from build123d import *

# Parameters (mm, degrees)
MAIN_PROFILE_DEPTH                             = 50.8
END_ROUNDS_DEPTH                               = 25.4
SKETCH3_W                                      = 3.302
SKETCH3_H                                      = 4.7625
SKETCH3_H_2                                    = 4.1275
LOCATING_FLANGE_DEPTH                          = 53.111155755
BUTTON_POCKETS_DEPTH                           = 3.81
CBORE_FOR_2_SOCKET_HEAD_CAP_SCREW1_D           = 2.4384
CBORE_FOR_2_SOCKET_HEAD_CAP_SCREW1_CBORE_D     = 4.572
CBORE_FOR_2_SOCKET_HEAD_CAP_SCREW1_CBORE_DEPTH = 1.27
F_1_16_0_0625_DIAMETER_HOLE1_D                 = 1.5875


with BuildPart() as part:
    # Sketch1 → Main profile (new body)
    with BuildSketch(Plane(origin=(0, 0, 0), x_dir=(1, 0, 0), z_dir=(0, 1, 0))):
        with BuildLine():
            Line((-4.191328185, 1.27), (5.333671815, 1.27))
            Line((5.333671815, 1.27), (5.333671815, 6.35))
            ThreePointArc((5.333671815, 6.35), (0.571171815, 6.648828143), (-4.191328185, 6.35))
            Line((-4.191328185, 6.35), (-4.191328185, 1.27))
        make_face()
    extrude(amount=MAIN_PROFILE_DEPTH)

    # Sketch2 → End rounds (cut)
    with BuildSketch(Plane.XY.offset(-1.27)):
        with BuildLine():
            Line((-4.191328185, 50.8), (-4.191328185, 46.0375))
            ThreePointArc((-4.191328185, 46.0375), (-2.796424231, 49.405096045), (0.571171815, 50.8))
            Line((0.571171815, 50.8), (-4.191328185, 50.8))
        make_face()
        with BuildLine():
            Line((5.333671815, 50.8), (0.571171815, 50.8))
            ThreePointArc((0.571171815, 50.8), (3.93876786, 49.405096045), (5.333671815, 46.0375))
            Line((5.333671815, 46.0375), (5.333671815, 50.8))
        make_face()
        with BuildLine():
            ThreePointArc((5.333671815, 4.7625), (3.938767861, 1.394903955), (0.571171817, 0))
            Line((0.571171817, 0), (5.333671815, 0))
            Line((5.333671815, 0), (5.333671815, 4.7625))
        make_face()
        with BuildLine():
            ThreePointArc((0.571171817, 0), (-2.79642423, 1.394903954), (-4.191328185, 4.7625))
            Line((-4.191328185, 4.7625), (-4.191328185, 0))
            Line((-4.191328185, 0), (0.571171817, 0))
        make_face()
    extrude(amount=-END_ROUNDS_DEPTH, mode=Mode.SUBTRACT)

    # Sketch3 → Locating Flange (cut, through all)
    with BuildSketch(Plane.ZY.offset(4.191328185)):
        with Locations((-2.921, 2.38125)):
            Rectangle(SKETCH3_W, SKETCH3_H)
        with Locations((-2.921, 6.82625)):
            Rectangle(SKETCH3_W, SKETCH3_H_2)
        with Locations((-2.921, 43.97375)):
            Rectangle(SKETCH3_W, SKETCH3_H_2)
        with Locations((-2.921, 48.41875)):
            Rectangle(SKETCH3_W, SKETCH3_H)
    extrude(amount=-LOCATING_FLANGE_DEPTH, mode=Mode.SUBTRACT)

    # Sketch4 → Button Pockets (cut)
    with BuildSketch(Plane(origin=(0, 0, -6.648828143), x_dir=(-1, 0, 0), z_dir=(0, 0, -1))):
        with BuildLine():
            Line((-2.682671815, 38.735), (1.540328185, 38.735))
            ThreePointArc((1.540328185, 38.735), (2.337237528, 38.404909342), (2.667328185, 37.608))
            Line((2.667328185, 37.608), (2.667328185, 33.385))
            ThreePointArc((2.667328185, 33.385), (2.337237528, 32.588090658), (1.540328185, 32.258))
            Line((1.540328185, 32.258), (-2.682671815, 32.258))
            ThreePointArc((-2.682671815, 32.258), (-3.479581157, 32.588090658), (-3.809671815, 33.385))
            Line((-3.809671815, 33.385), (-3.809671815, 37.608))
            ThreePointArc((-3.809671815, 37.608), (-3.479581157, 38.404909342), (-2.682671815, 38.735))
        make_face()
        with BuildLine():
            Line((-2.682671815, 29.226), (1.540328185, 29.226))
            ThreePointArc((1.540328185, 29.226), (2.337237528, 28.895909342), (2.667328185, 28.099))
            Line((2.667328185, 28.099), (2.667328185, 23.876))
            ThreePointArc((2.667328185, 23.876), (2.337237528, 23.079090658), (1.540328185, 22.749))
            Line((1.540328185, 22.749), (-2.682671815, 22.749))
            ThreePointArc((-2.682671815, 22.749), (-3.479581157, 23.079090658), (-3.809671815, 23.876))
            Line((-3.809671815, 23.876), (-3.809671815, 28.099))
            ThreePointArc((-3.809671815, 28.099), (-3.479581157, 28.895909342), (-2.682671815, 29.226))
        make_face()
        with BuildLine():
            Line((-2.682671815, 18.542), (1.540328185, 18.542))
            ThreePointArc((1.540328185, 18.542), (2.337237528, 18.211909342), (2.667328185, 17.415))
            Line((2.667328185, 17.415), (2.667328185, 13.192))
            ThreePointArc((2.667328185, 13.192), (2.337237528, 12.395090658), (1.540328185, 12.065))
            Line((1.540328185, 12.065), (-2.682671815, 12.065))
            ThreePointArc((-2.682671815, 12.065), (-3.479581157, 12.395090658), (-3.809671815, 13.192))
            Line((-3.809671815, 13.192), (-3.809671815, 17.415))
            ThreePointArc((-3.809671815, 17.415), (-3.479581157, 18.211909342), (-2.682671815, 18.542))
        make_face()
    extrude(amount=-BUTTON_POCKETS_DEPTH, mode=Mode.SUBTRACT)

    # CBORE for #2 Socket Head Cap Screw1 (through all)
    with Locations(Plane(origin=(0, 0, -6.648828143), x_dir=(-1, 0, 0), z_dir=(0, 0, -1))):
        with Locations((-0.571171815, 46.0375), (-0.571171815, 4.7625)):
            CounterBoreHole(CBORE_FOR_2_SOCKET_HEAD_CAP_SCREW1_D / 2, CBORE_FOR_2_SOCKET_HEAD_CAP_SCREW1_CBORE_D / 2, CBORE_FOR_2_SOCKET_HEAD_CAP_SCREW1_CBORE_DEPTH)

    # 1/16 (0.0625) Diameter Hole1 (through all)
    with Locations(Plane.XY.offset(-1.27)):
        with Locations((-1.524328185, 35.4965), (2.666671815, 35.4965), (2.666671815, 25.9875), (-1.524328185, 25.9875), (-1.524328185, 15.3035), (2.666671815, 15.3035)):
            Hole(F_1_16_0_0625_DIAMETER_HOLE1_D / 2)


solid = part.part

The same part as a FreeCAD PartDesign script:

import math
import FreeCAD as App
import Part
import Sketcher
from FreeCAD import Vector
Q = App.Units.Quantity


def add_polygon(sketch, points):
    """Adds a closed chain of lines whose ends are joined by coincident constraints."""
    first, n = sketch.GeometryCount, len(points)
    for a, b in zip(points, points[1:] + points[:1]):
        sketch.addGeometry(Part.LineSegment(App.Vector(*a, 0), App.Vector(*b, 0)), False)
    for i in range(n):
        sketch.addConstraint(Sketcher.Constraint("Coincident", first + i, 2, first + (i + 1) % n, 1))

doc = App.newDocument("Part")
params = doc.addObject("Spreadsheet::Sheet", "Params")
for row, (alias, value) in enumerate([
    ("sketch1_radius", "1.5 in"),
    ("sketch1_height", "0.2 in"),
    ("sketch1_width", "0.375 in"),
    ("pad1_length", "2 in"),
    ("sketch2_radius", "0.1875 in"),
    ("pocket1_length", "1 in"),
    ("sketch3_width", "0.35 in"),
    ("sketch3_height", "0.13 in"),
    ("pocket3_length", "0.15 in"),
    ("sketch5_diameter", "0.096 in"),
    ("hole_diameter", "0.096 in"),
    ("hole_cbore_diameter", "0.18 in"),
    ("hole_cbore_depth", "0.05 in"),
    ("sketch6_diameter", "0.0625 in"),
    ("hole2_diameter", "0.0625 in"),
], start=1):
    params.set(f"A{row}", alias)
    params.set(f"B{row}", "=" + value)
    params.setAlias(f"B{row}", alias)

body = doc.addObject("PartDesign::Body", "Body")

# Sketch on XZ plane
sketch1 = body.newObject("Sketcher::SketchObject", "Sketch")
sketch1.AttachmentSupport = (doc.getObject("XZ_Plane"), [""])
sketch1.MapMode = "FlatFace"
sketch1.addGeometry(Part.LineSegment(Vector(-4, -1, 0), Vector(5, -1, 0)), False)
sketch1.addGeometry(Part.LineSegment(Vector(5, -1, 0), Vector(5, -6, 0)), False)
sketch1.addGeometry(Part.ArcOfCircle(Part.Circle(Vector(1, 31, 0), Vector(0, 0, 1), 38), math.radians(-97.18), math.radians(-82.82)), False)
sketch1.addGeometry(Part.LineSegment(Vector(-4, -6, 0), Vector(-4, -1, 0)), False)
sketch1.addConstraint(Sketcher.Constraint("Coincident", 0, 2, 1, 1))
sketch1.addConstraint(Sketcher.Constraint("Coincident", 1, 2, 2, 2))
sketch1.addConstraint(Sketcher.Constraint("Coincident", 2, 1, 3, 1))
sketch1.addConstraint(Sketcher.Constraint("Coincident", 3, 2, 0, 1))
sketch1.addConstraint(Sketcher.Constraint("Horizontal", 0))
sketch1.addConstraint(Sketcher.Constraint("Vertical", 1))
sketch1.addConstraint(Sketcher.Constraint("Vertical", 3))
sketch1.addConstraint(Sketcher.Constraint("Horizontal", 1, 2, 2, 1))
sketch1.addConstraint(Sketcher.Constraint("Radius", 2, Q("1.5 in")))
sketch1.addConstraint(Sketcher.Constraint("DistanceY", 1, 2, 1, 1, Q("0.2 in")))
sketch1.addConstraint(Sketcher.Constraint("DistanceX", 0, 1, 0, 2, Q("0.375 in")))
sketch1.addConstraint(Sketcher.Constraint("DistanceY", 0, 2, -1, 1, Q("0.05 in")))
sketch1.addConstraint(Sketcher.Constraint("DistanceX", -1, 1, 2, 3, Q("0.571172 mm")))
sketch1.setExpression("Constraints[8]", "Params.sketch1_radius")
sketch1.setExpression("Constraints[9]", "Params.sketch1_height")
sketch1.setExpression("Constraints[10]", "Params.sketch1_width")
pad1 = body.newObject("PartDesign::Pad", "Pad")
pad1.Profile = sketch1
pad1.setExpression("Length", "Params.pad1_length")
pad1.Reversed = True

# Sketch on XY plane
sketch2 = body.newObject("Sketcher::SketchObject", "Sketch001")
sketch2.AttachmentSupport = (doc.getObject("XY_Plane"), [""])
sketch2.MapMode = "FlatFace"
sketch2.AttachmentOffset = App.Placement(Vector(0, 0, -0.05 * 25.4), App.Rotation())
sketch2.addGeometry(Part.LineSegment(Vector(-4.2, 50.8, 0), Vector(-4.2, 46, 0)), False)
sketch2.addGeometry(Part.ArcOfCircle(Part.Circle(Vector(0.6, 46, 0), Vector(0, 0, 1), 4.8), math.radians(90), math.radians(180)), False)
sketch2.addGeometry(Part.LineSegment(Vector(0.6, 50.8, 0), Vector(-4.2, 50.8, 0)), False)
sketch2.addGeometry(Part.LineSegment(Vector(5.3, 50.8, 0), Vector(0.6, 50.8, 0)), False)
sketch2.addGeometry(Part.ArcOfCircle(Part.Circle(Vector(0.6, 46, 0), Vector(0, 0, 1), 4.8), math.radians(0), math.radians(90)), False)
sketch2.addGeometry(Part.LineSegment(Vector(5.3, 46, 0), Vector(5.3, 50.8, 0)), False)
sketch2.addGeometry(Part.ArcOfCircle(Part.Circle(Vector(0.6, 4.8, 0), Vector(0, 0, 1), 4.8), math.radians(-90), math.radians(0)), False)
sketch2.addGeometry(Part.LineSegment(Vector(0.6, 0, 0), Vector(5.3, 0, 0)), False)
sketch2.addGeometry(Part.LineSegment(Vector(5.3, 0, 0), Vector(5.3, 4.8, 0)), False)
sketch2.addGeometry(Part.ArcOfCircle(Part.Circle(Vector(0.6, 4.8, 0), Vector(0, 0, 1), 4.8), math.radians(180), math.radians(270)), False)
sketch2.addGeometry(Part.LineSegment(Vector(-4.2, 4.8, 0), Vector(-4.2, 0, 0)), False)
sketch2.addGeometry(Part.LineSegment(Vector(-4.2, 0, 0), Vector(0.6, 0, 0)), False)
sketch2.addConstraint(Sketcher.Constraint("Tangent", 0, 2, 1, 2))
sketch2.addConstraint(Sketcher.Constraint("Tangent", 1, 1, 2, 1))
sketch2.addConstraint(Sketcher.Constraint("Coincident", 2, 2, 0, 1))
sketch2.addConstraint(Sketcher.Constraint("Tangent", 3, 2, 4, 2))
sketch2.addConstraint(Sketcher.Constraint("Tangent", 4, 1, 5, 1))
sketch2.addConstraint(Sketcher.Constraint("Coincident", 5, 2, 3, 1))
sketch2.addConstraint(Sketcher.Constraint("Tangent", 6, 1, 7, 1))
sketch2.addConstraint(Sketcher.Constraint("Coincident", 7, 2, 8, 1))
sketch2.addConstraint(Sketcher.Constraint("Tangent", 8, 2, 6, 2))
sketch2.addConstraint(Sketcher.Constraint("Tangent", 9, 1, 10, 1))
sketch2.addConstraint(Sketcher.Constraint("Coincident", 10, 2, 11, 1))
sketch2.addConstraint(Sketcher.Constraint("Tangent", 11, 2, 9, 2))
sketch2.addConstraint(Sketcher.Constraint("Vertical", 0))
sketch2.addConstraint(Sketcher.Constraint("Horizontal", 2))
sketch2.addConstraint(Sketcher.Constraint("Horizontal", 3))
sketch2.addConstraint(Sketcher.Constraint("Vertical", 5))
sketch2.addConstraint(Sketcher.Constraint("Horizontal", 7))
sketch2.addConstraint(Sketcher.Constraint("Vertical", 8))
sketch2.addConstraint(Sketcher.Constraint("Vertical", 10))
sketch2.addConstraint(Sketcher.Constraint("Horizontal", 11))
sketch2.addConstraint(Sketcher.Constraint("Coincident", 4, 3, 1, 3))
sketch2.addConstraint(Sketcher.Constraint("Coincident", 9, 3, 6, 3))
sketch2.addConstraint(Sketcher.Constraint("Equal", 1, 4))
sketch2.addConstraint(Sketcher.Constraint("Equal", 4, 6))
sketch2.addConstraint(Sketcher.Constraint("Equal", 6, 9))
sketch2.addConstraint(Sketcher.Constraint("PointOnObject", 6, 1, -1))
sketch2.addConstraint(Sketcher.Constraint("Vertical", 4, 3, 6, 3))
sketch2.addConstraint(Sketcher.Constraint("DistanceY", -1, 1, 1, 1, Q("2 in")))
sketch2.addConstraint(Sketcher.Constraint("Radius", 1, Q("0.1875 in")))
sketch2.addConstraint(Sketcher.Constraint("DistanceX", -1, 1, 1, 3, Q("0.571172 mm")))
sketch2.setExpression("Constraints[28]", "Params.sketch2_radius")
pocket1 = body.newObject("PartDesign::Pocket", "Pocket")
pocket1.Profile = sketch2
pocket1.setExpression("Length", "Params.pocket1_length")

# Sketch on YZ plane
sketch3 = body.newObject("Sketcher::SketchObject", "Sketch002")
sketch3.AttachmentSupport = (doc.getObject("YZ_Plane"), [""])
sketch3.MapMode = "FlatFace"
sketch3.AttachmentOffset = App.Placement(Vector(0, 0, -4.191328), App.Rotation())
add_polygon(sketch3, [(0, -4.6), (0, -1.3), (8.9, -1.3), (8.9, -4.6)])  # lines 0-3
add_polygon(sketch3, [(41.9, -4.6), (41.9, -1.3), (50.8, -1.3), (50.8, -4.6)])  # lines 4-7
sketch3.addConstraint(Sketcher.Constraint("Vertical", 0))
sketch3.addConstraint(Sketcher.Constraint("Horizontal", 1))
sketch3.addConstraint(Sketcher.Constraint("Vertical", 2))
sketch3.addConstraint(Sketcher.Constraint("Horizontal", 3))
sketch3.addConstraint(Sketcher.Constraint("Vertical", 4))
sketch3.addConstraint(Sketcher.Constraint("Horizontal", 5))
sketch3.addConstraint(Sketcher.Constraint("Vertical", 6))
sketch3.addConstraint(Sketcher.Constraint("Horizontal", 7))
sketch3.addConstraint(Sketcher.Constraint("PointOnObject", 0, 2, -2))
sketch3.addConstraint(Sketcher.Constraint("Horizontal", 1, 2, 4, 2))
sketch3.addConstraint(Sketcher.Constraint("Horizontal", 3, 2, 6, 2))
sketch3.addConstraint(Sketcher.Constraint("Equal", 3, 5))
sketch3.addConstraint(Sketcher.Constraint("DistanceX", -1, 1, 5, 2, Q("2 in")))
sketch3.addConstraint(Sketcher.Constraint("DistanceX", 1, 1, 1, 2, Q("0.35 in")))
sketch3.addConstraint(Sketcher.Constraint("DistanceY", 0, 1, 0, 2, Q("0.13 in")))
sketch3.addConstraint(Sketcher.Constraint("DistanceY", 0, 2, -1, 1, Q("0.05 in")))
sketch3.setExpression("Constraints[21]", "Params.sketch3_width")
sketch3.setExpression("Constraints[22]", "Params.sketch3_height")
pocket2 = body.newObject("PartDesign::Pocket", "Pocket001")
pocket2.Profile = sketch3
pocket2.Type = "ThroughAll"
pocket2.Reversed = True

# Sketch on XY plane
sketch4 = body.newObject("Sketcher::SketchObject", "Sketch003")
sketch4.AttachmentSupport = (doc.getObject("XY_Plane"), [""])
sketch4.MapMode = "FlatFace"
sketch4.AttachmentOffset = App.Placement(Vector(0, 0, -6.648828), App.Rotation())
sketch4.addGeometry(Part.LineSegment(Vector(-1.5, 38.7, 0), Vector(2.7, 38.7, 0)), False)
sketch4.addGeometry(Part.ArcOfCircle(Part.Circle(Vector(2.7, 37.6, 0), Vector(0, 0, 1), 1.1), math.radians(0), math.radians(90)), False)
sketch4.addGeometry(Part.LineSegment(Vector(3.8, 37.6, 0), Vector(3.8, 33.4, 0)), False)
sketch4.addGeometry(Part.ArcOfCircle(Part.Circle(Vector(2.7, 33.4, 0), Vector(0, 0, 1), 1.1), math.radians(-90), math.radians(0)), False)
sketch4.addGeometry(Part.LineSegment(Vector(2.7, 32.3, 0), Vector(-1.5, 32.3, 0)), False)
sketch4.addGeometry(Part.ArcOfCircle(Part.Circle(Vector(-1.5, 33.4, 0), Vector(0, 0, 1), 1.1), math.radians(180), math.radians(270)), False)
sketch4.addGeometry(Part.LineSegment(Vector(-2.7, 33.4, 0), Vector(-2.7, 37.6, 0)), False)
sketch4.addGeometry(Part.ArcOfCircle(Part.Circle(Vector(-1.5, 37.6, 0), Vector(0, 0, 1), 1.1), math.radians(90), math.radians(180)), False)
sketch4.addGeometry(Part.LineSegment(Vector(-1.5, 29.2, 0), Vector(2.7, 29.2, 0)), False)
sketch4.addGeometry(Part.ArcOfCircle(Part.Circle(Vector(2.7, 28.1, 0), Vector(0, 0, 1), 1.1), math.radians(0), math.radians(90)), False)
sketch4.addGeometry(Part.LineSegment(Vector(3.8, 28.1, 0), Vector(3.8, 23.9, 0)), False)
sketch4.addGeometry(Part.ArcOfCircle(Part.Circle(Vector(2.7, 23.9, 0), Vector(0, 0, 1), 1.1), math.radians(-90), math.radians(0)), False)
sketch4.addGeometry(Part.LineSegment(Vector(2.7, 22.7, 0), Vector(-1.5, 22.7, 0)), False)
sketch4.addGeometry(Part.ArcOfCircle(Part.Circle(Vector(-1.5, 23.9, 0), Vector(0, 0, 1), 1.1), math.radians(180), math.radians(270)), False)
sketch4.addGeometry(Part.LineSegment(Vector(-2.7, 23.9, 0), Vector(-2.7, 28.1, 0)), False)
sketch4.addGeometry(Part.ArcOfCircle(Part.Circle(Vector(-1.5, 28.1, 0), Vector(0, 0, 1), 1.1), math.radians(90), math.radians(180)), False)
sketch4.addGeometry(Part.LineSegment(Vector(-1.5, 18.5, 0), Vector(2.7, 18.5, 0)), False)
sketch4.addGeometry(Part.ArcOfCircle(Part.Circle(Vector(2.7, 17.4, 0), Vector(0, 0, 1), 1.1), math.radians(0), math.radians(90)), False)
sketch4.addGeometry(Part.LineSegment(Vector(3.8, 17.4, 0), Vector(3.8, 13.2, 0)), False)
sketch4.addGeometry(Part.ArcOfCircle(Part.Circle(Vector(2.7, 13.2, 0), Vector(0, 0, 1), 1.1), math.radians(-90), math.radians(0)), False)
sketch4.addGeometry(Part.LineSegment(Vector(2.7, 12.1, 0), Vector(-1.5, 12.1, 0)), False)
sketch4.addGeometry(Part.ArcOfCircle(Part.Circle(Vector(-1.5, 13.2, 0), Vector(0, 0, 1), 1.1), math.radians(180), math.radians(270)), False)
sketch4.addGeometry(Part.LineSegment(Vector(-2.7, 13.2, 0), Vector(-2.7, 17.4, 0)), False)
sketch4.addGeometry(Part.ArcOfCircle(Part.Circle(Vector(-1.5, 17.4, 0), Vector(0, 0, 1), 1.1), math.radians(90), math.radians(180)), False)
sketch4.addConstraint(Sketcher.Constraint("Tangent", 0, 2, 1, 2))
sketch4.addConstraint(Sketcher.Constraint("Tangent", 1, 1, 2, 1))
sketch4.addConstraint(Sketcher.Constraint("Tangent", 2, 2, 3, 2))
sketch4.addConstraint(Sketcher.Constraint("Tangent", 3, 1, 4, 1))
sketch4.addConstraint(Sketcher.Constraint("Tangent", 4, 2, 5, 2))
sketch4.addConstraint(Sketcher.Constraint("Tangent", 5, 1, 6, 1))
sketch4.addConstraint(Sketcher.Constraint("Tangent", 6, 2, 7, 2))
sketch4.addConstraint(Sketcher.Constraint("Tangent", 7, 1, 0, 1))
sketch4.addConstraint(Sketcher.Constraint("Tangent", 8, 2, 9, 2))
sketch4.addConstraint(Sketcher.Constraint("Tangent", 9, 1, 10, 1))
sketch4.addConstraint(Sketcher.Constraint("Tangent", 10, 2, 11, 2))
sketch4.addConstraint(Sketcher.Constraint("Tangent", 11, 1, 12, 1))
sketch4.addConstraint(Sketcher.Constraint("Tangent", 12, 2, 13, 2))
sketch4.addConstraint(Sketcher.Constraint("Tangent", 13, 1, 14, 1))
sketch4.addConstraint(Sketcher.Constraint("Tangent", 14, 2, 15, 2))
sketch4.addConstraint(Sketcher.Constraint("Tangent", 15, 1, 8, 1))
sketch4.addConstraint(Sketcher.Constraint("Tangent", 16, 2, 17, 2))
sketch4.addConstraint(Sketcher.Constraint("Tangent", 17, 1, 18, 1))
sketch4.addConstraint(Sketcher.Constraint("Tangent", 18, 2, 19, 2))
sketch4.addConstraint(Sketcher.Constraint("Tangent", 19, 1, 20, 1))
sketch4.addConstraint(Sketcher.Constraint("Tangent", 20, 2, 21, 2))
sketch4.addConstraint(Sketcher.Constraint("Tangent", 21, 1, 22, 1))
sketch4.addConstraint(Sketcher.Constraint("Tangent", 22, 2, 23, 2))
sketch4.addConstraint(Sketcher.Constraint("Tangent", 23, 1, 16, 1))
sketch4.addConstraint(Sketcher.Constraint("Horizontal", 0))
sketch4.addConstraint(Sketcher.Constraint("Vertical", 2))
sketch4.addConstraint(Sketcher.Constraint("Horizontal", 4))
sketch4.addConstraint(Sketcher.Constraint("Vertical", 6))
sketch4.addConstraint(Sketcher.Constraint("Horizontal", 8))
sketch4.addConstraint(Sketcher.Constraint("Vertical", 10))
sketch4.addConstraint(Sketcher.Constraint("Horizontal", 12))
sketch4.addConstraint(Sketcher.Constraint("Vertical", 14))
sketch4.addConstraint(Sketcher.Constraint("Horizontal", 16))
sketch4.addConstraint(Sketcher.Constraint("Vertical", 18))
sketch4.addConstraint(Sketcher.Constraint("Horizontal", 20))
sketch4.addConstraint(Sketcher.Constraint("Vertical", 22))
sketch4.addConstraint(Sketcher.Constraint("Equal", 1, 3))
sketch4.addConstraint(Sketcher.Constraint("Equal", 3, 5))
sketch4.addConstraint(Sketcher.Constraint("Equal", 5, 7))
sketch4.addConstraint(Sketcher.Constraint("Equal", 7, 9))
sketch4.addConstraint(Sketcher.Constraint("Equal", 9, 11))
sketch4.addConstraint(Sketcher.Constraint("Equal", 11, 13))
sketch4.addConstraint(Sketcher.Constraint("Equal", 13, 15))
sketch4.addConstraint(Sketcher.Constraint("Equal", 15, 17))
sketch4.addConstraint(Sketcher.Constraint("Equal", 17, 19))
sketch4.addConstraint(Sketcher.Constraint("Equal", 19, 21))
sketch4.addConstraint(Sketcher.Constraint("Equal", 21, 23))
sketch4.addConstraint(Sketcher.Constraint("Vertical", 3, 3, 9, 3))
sketch4.addConstraint(Sketcher.Constraint("Vertical", 7, 3, 13, 3))
sketch4.addConstraint(Sketcher.Constraint("Vertical", 11, 3, 17, 3))
sketch4.addConstraint(Sketcher.Constraint("Vertical", 15, 3, 21, 3))
sketch4.addConstraint(Sketcher.Constraint("Equal", 20, 2))
sketch4.addConstraint(Sketcher.Constraint("Equal", 6, 10))
sketch4.addConstraint(Sketcher.Constraint("Equal", 14, 18))
sketch4.addConstraint(Sketcher.Constraint("DistanceY", -1, 1, 11, 3, Q("0.94 in")))
sketch4.addConstraint(Sketcher.Constraint("DistanceY", -1, 1, 3, 1, Q("1.27 in")))
sketch4.addConstraint(Sketcher.Constraint("DistanceY", -1, 1, 16, 2, Q("0.73 in")))
sketch4.addConstraint(Sketcher.Constraint("Radius", 1, Q("1.127 mm")))
sketch4.addConstraint(Sketcher.Constraint("DistanceY", -1, 1, 0, 2, Q("1.525 in")))
sketch4.addConstraint(Sketcher.Constraint("DistanceX", -1, 1, 1, 3, Q("2.682672 mm")))
pocket3 = body.newObject("PartDesign::Pocket", "Pocket002")
pocket3.Profile = sketch4
pocket3.setExpression("Length", "Params.pocket3_length")
pocket3.Reversed = True

# Sketch on XY plane
sketch5 = body.newObject("Sketcher::SketchObject", "Sketch004")
sketch5.AttachmentSupport = (doc.getObject("XY_Plane"), [""])
sketch5.MapMode = "FlatFace"
sketch5.AttachmentOffset = App.Placement(Vector(0, 0, -6.648828), App.Rotation())
sketch5.addGeometry(Part.Circle(Vector(0.6, 46, 0), Vector(0, 0, 1), 1.2), False)
sketch5.addGeometry(Part.Circle(Vector(0.6, 4.8, 0), Vector(0, 0, 1), 1.2), False)
sketch5.addConstraint(Sketcher.Constraint("Equal", 0, 1))
sketch5.addConstraint(Sketcher.Constraint("Vertical", 0, 3, 1, 3))
sketch5.addConstraint(Sketcher.Constraint("Diameter", 0, Q("0.096 in")))
sketch5.addConstraint(Sketcher.Constraint("DistanceY", -1, 1, 0, 3, Q("1.8125 in")))
sketch5.addConstraint(Sketcher.Constraint("DistanceY", -1, 1, 1, 3, Q("0.1875 in")))
sketch5.addConstraint(Sketcher.Constraint("DistanceX", -1, 1, 0, 3, Q("0.571172 mm")))
sketch5.setExpression("Constraints[2]", "Params.sketch5_diameter")
doc.recompute()
hole = body.newObject("PartDesign::Hole", "Hole")
hole.Profile = sketch5
hole.ThreadType = "None"
hole.setExpression("Diameter", "Params.hole_diameter")
hole.DepthType = "ThroughAll"
hole.HoleCutType = "Counterbore"
hole.setExpression("HoleCutDiameter", "Params.hole_cbore_diameter")
hole.setExpression("HoleCutDepth", "Params.hole_cbore_depth")
hole.Reversed = True

# Sketch on XY plane
sketch6 = body.newObject("Sketcher::SketchObject", "Sketch005")
sketch6.AttachmentSupport = (doc.getObject("XY_Plane"), [""])
sketch6.MapMode = "FlatFace"
sketch6.AttachmentOffset = App.Placement(Vector(0, 0, -0.05 * 25.4), App.Rotation())
sketch6.addGeometry(Part.Circle(Vector(-1.5, 35.5, 0), Vector(0, 0, 1), 0.8), False)
sketch6.addGeometry(Part.Circle(Vector(2.7, 35.5, 0), Vector(0, 0, 1), 0.8), False)
sketch6.addGeometry(Part.Circle(Vector(2.7, 26, 0), Vector(0, 0, 1), 0.8), False)
sketch6.addGeometry(Part.Circle(Vector(-1.5, 26, 0), Vector(0, 0, 1), 0.8), False)
sketch6.addGeometry(Part.Circle(Vector(-1.5, 15.3, 0), Vector(0, 0, 1), 0.8), False)
sketch6.addGeometry(Part.Circle(Vector(2.7, 15.3, 0), Vector(0, 0, 1), 0.8), False)
sketch6.addConstraint(Sketcher.Constraint("Equal", 0, 1))
sketch6.addConstraint(Sketcher.Constraint("Equal", 1, 2))
sketch6.addConstraint(Sketcher.Constraint("Equal", 2, 3))
sketch6.addConstraint(Sketcher.Constraint("Equal", 3, 4))
sketch6.addConstraint(Sketcher.Constraint("Equal", 4, 5))
sketch6.addConstraint(Sketcher.Constraint("Horizontal", 0, 3, 1, 3))
sketch6.addConstraint(Sketcher.Constraint("Horizontal", 2, 3, 3, 3))
sketch6.addConstraint(Sketcher.Constraint("Horizontal", 4, 3, 5, 3))
sketch6.addConstraint(Sketcher.Constraint("Vertical", 1, 3, 2, 3))
sketch6.addConstraint(Sketcher.Constraint("Vertical", 0, 3, 3, 3))
sketch6.addConstraint(Sketcher.Constraint("Vertical", 3, 3, 4, 3))
sketch6.addConstraint(Sketcher.Constraint("Vertical", 2, 3, 5, 3))
sketch6.addConstraint(Sketcher.Constraint("Diameter", 0, Q("0.0625 in")))
sketch6.addConstraint(Sketcher.Constraint("DistanceX", 0, 3, 1, 3, Q("0.165 in")))
sketch6.addConstraint(Sketcher.Constraint("DistanceY", 4, 3, 0, 3, Q("0.795 in")))
sketch6.addConstraint(Sketcher.Constraint("DistanceY", -1, 1, 0, 3, Q("1.3975 in")))
sketch6.addConstraint(Sketcher.Constraint("DistanceY", -1, 1, 2, 3, Q("25.9875 mm")))
sketch6.addConstraint(Sketcher.Constraint("DistanceX", 0, 3, -1, 1, Q("1.524328 mm")))
sketch6.setExpression("Constraints[12]", "Params.sketch6_diameter")
doc.recompute()
hole2 = body.newObject("PartDesign::Hole", "Hole001")
hole2.Profile = sketch6
hole2.ThreadType = "None"
hole2.setExpression("Diameter", "Params.hole2_diameter")
hole2.DepthType = "ThroughAll"

doc.recompute()
